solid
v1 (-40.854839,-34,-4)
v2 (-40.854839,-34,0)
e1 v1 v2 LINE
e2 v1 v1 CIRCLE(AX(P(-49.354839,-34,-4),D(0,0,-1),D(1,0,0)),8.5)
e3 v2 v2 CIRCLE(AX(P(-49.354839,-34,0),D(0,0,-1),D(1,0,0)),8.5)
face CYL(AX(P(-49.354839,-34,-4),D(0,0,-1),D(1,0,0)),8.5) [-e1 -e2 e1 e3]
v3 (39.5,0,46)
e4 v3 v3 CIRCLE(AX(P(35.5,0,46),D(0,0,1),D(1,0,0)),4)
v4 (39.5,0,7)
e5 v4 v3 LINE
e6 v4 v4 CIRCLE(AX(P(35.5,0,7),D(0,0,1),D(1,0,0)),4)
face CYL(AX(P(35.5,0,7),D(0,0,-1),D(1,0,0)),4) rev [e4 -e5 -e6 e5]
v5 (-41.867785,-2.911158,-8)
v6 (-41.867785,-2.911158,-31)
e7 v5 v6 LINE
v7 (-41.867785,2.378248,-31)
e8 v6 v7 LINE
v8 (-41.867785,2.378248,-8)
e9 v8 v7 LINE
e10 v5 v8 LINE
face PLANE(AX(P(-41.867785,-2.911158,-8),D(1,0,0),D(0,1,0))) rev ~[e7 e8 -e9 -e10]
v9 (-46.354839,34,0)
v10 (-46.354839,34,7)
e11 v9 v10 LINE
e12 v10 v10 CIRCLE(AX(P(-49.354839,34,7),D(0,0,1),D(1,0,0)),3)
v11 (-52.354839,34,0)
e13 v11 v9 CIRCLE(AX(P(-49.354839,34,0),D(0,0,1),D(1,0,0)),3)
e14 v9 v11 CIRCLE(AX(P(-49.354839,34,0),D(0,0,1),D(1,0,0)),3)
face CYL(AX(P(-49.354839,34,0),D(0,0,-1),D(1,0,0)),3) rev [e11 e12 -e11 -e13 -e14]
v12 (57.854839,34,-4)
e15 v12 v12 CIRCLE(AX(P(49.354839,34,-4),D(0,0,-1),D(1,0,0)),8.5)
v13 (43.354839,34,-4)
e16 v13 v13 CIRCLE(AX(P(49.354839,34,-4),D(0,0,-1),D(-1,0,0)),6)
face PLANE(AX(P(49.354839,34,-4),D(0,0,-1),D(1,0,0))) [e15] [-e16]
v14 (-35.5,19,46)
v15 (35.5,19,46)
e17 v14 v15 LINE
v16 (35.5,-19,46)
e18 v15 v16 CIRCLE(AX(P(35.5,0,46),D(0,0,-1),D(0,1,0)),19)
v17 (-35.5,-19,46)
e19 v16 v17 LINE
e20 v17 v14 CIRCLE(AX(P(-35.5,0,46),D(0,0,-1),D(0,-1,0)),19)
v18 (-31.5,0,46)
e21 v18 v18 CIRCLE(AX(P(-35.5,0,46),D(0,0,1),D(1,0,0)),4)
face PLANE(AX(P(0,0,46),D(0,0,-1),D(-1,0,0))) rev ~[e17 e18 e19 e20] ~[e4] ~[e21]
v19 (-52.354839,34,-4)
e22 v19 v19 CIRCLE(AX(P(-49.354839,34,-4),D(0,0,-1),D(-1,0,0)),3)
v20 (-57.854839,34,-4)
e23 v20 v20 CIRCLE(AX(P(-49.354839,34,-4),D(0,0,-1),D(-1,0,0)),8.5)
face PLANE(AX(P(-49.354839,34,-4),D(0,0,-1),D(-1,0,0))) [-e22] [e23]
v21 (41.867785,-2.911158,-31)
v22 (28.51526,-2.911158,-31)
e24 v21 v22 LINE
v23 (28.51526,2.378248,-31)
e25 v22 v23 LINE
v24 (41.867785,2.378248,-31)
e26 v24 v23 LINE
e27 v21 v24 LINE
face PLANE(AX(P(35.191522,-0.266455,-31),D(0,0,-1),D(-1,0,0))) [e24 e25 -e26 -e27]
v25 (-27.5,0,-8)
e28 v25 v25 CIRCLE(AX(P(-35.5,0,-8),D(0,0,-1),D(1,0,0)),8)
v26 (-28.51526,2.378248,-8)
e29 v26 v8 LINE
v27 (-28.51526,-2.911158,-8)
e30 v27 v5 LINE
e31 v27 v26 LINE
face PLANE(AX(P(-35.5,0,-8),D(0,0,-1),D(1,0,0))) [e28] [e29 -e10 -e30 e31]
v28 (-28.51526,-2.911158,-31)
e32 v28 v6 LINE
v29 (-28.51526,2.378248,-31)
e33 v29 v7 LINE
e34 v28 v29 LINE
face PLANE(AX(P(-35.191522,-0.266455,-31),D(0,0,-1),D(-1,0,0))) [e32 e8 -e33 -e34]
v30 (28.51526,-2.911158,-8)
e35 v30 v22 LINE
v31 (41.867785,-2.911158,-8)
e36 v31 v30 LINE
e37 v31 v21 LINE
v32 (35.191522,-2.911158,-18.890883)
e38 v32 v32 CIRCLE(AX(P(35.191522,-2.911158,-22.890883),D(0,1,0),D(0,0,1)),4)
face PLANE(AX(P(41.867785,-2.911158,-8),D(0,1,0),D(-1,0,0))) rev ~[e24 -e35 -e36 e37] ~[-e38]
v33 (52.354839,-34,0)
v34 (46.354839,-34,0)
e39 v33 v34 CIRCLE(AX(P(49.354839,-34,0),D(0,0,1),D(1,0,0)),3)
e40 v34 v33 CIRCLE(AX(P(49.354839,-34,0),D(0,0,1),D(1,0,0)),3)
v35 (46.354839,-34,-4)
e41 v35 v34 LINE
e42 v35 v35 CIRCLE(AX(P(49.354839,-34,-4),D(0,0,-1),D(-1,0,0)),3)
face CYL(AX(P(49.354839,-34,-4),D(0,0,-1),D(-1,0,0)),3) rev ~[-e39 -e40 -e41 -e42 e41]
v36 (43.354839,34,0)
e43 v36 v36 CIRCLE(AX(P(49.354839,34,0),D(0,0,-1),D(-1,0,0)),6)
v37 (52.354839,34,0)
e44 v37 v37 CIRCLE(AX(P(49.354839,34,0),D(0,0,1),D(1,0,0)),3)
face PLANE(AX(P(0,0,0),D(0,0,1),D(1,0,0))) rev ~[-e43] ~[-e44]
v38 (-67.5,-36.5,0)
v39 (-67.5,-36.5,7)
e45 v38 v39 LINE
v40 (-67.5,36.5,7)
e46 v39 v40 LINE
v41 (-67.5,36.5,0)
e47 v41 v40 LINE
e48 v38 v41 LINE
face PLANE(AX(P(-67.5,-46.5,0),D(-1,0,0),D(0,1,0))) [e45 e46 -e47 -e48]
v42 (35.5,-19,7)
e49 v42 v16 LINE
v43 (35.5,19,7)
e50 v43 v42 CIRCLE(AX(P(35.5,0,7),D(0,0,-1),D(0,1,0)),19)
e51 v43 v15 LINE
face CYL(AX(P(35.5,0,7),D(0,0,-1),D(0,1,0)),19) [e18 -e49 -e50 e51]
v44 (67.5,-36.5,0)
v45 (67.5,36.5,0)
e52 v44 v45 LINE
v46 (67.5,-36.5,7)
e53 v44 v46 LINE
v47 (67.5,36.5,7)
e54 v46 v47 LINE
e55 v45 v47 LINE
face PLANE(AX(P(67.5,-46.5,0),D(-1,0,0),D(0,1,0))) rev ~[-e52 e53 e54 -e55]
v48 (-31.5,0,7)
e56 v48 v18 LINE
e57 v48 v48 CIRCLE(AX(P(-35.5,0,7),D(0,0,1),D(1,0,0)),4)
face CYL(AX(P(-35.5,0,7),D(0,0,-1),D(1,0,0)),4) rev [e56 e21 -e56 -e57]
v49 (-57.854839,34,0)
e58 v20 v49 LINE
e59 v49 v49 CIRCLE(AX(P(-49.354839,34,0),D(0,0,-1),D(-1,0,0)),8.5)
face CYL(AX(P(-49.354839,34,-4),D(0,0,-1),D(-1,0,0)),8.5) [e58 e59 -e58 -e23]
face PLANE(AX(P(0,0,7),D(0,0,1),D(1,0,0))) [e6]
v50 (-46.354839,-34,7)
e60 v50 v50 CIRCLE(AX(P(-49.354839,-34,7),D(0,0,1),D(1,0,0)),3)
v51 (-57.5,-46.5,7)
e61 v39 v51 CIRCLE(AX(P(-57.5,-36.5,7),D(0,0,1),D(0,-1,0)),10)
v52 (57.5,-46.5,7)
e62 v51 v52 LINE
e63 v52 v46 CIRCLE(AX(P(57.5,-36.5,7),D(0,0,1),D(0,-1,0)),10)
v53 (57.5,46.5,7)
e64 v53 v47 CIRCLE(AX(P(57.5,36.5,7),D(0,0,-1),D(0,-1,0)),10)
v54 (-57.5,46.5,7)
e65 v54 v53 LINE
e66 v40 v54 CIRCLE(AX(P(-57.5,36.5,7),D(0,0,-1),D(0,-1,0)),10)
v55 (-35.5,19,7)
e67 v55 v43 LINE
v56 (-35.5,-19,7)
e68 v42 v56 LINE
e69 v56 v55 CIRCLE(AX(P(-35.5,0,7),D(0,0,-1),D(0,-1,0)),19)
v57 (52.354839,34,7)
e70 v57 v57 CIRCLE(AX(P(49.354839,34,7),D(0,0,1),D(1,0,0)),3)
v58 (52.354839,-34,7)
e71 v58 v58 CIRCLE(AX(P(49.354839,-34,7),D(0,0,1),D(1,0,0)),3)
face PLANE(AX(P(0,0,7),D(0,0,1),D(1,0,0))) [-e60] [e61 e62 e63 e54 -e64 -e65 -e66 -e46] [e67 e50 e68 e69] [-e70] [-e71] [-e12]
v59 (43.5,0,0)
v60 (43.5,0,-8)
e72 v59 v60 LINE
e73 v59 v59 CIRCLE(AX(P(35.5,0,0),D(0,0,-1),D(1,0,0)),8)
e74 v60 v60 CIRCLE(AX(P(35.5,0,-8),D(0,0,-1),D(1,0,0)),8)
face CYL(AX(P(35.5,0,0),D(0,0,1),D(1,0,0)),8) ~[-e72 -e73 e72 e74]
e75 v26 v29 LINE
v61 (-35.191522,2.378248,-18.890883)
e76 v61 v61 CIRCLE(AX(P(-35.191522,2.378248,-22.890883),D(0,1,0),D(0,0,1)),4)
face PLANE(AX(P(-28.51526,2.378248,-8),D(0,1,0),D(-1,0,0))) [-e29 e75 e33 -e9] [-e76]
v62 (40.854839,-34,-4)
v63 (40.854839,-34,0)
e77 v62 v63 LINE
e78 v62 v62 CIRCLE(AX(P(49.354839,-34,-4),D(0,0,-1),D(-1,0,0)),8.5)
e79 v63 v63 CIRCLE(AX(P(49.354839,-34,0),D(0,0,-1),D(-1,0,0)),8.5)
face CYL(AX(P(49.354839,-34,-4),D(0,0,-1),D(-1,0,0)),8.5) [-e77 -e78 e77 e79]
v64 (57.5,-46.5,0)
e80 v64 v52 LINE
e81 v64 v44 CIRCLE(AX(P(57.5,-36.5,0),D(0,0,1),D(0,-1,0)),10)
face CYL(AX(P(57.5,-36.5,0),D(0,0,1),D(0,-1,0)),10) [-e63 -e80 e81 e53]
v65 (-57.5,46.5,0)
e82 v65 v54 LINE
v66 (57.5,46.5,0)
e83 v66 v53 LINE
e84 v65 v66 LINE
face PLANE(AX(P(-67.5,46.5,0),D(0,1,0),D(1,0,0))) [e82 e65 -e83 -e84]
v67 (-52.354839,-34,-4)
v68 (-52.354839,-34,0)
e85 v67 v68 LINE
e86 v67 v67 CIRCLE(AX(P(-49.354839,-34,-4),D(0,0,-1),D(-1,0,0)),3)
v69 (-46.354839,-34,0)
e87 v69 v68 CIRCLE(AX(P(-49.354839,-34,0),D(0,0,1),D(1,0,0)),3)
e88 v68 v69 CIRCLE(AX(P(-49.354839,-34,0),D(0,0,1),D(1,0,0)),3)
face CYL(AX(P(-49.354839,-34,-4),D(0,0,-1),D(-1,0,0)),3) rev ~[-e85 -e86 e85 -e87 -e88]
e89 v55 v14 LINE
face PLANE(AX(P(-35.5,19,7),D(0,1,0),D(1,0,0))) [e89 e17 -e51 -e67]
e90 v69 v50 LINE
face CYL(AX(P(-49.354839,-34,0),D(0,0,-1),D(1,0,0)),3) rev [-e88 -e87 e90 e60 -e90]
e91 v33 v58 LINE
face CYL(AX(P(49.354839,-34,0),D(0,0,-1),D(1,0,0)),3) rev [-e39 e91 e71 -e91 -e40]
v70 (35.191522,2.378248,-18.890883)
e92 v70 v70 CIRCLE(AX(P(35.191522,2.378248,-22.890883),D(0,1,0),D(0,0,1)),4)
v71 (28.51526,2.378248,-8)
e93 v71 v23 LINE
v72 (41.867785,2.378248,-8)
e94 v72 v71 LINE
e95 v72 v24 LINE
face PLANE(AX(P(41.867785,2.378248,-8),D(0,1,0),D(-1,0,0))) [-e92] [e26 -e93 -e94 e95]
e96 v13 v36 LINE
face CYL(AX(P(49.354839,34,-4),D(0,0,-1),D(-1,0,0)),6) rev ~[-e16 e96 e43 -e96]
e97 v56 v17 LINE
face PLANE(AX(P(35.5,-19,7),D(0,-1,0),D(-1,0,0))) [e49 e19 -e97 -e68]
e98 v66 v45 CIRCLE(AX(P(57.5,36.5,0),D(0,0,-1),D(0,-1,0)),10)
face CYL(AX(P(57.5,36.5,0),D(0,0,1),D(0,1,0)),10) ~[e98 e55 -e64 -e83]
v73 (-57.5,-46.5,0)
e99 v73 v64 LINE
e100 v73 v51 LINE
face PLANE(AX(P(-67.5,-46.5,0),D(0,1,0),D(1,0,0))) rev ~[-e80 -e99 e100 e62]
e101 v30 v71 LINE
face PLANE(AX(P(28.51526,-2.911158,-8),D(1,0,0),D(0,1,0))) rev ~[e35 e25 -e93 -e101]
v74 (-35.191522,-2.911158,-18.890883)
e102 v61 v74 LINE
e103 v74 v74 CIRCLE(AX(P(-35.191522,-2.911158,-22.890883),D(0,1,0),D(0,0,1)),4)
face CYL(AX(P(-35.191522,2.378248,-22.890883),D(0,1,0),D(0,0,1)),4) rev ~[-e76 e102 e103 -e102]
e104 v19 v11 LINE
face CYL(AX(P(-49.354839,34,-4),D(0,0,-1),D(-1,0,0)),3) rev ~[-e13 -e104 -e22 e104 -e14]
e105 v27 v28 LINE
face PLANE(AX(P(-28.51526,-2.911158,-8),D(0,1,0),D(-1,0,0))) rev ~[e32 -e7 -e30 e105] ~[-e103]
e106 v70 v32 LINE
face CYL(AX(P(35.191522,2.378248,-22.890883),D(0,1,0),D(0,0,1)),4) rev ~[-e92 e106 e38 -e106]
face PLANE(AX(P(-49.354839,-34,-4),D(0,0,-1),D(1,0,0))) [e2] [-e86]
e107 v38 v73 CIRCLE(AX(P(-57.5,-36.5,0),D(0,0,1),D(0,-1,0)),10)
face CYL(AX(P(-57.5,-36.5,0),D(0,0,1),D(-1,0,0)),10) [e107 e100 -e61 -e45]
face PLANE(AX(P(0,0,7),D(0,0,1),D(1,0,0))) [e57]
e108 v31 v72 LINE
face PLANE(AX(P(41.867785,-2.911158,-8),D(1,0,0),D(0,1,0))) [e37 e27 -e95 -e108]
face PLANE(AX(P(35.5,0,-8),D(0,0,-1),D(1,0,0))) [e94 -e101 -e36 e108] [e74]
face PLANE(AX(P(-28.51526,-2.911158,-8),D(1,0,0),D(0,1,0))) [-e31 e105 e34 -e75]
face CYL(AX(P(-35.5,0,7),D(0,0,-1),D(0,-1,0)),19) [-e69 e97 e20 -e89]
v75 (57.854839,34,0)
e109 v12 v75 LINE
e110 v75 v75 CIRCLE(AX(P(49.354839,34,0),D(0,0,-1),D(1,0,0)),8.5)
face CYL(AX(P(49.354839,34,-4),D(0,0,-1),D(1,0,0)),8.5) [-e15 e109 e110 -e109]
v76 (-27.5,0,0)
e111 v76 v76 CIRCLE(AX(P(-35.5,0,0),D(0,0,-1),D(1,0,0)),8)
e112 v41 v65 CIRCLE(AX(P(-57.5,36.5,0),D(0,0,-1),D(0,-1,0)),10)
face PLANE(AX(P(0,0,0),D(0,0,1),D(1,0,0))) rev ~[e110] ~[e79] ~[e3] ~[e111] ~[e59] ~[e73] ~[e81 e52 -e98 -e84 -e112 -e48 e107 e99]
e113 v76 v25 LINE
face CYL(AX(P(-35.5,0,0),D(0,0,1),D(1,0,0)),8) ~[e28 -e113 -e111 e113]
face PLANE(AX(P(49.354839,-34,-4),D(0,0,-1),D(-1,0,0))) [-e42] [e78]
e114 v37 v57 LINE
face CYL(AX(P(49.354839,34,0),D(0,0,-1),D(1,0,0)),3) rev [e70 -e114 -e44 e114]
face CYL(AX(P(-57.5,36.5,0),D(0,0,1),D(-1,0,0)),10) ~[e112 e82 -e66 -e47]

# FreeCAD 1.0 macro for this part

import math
import FreeCAD as App
import Part
import Sketcher

V = App.Vector


def edges_at(feature, points):
    """Names of the edges that pass closest to the given points."""
    edges = feature.Shape.Edges
    near = lambda p: min(range(len(edges)), key=lambda i: edges[i].distToShape(Part.Vertex(*p))[0])
    return sorted({f"Edge{near(p) + 1}" for p in points})

doc = App.newDocument("Part")
body = doc.addObject("PartDesign::Body", "Body")

# Sketch on XY plane
sketch1 = body.newObject("Sketcher::SketchObject", "Sketch")
sketch1.AttachmentSupport = (doc.getObject("XY_Plane"), [""])
sketch1.MapMode = "FlatFace"
sketch1.addGeometry([
    Part.LineSegment(V(-67.5, 46.5, 0), V(-67.5, -46.5, 0)),  # 0
    Part.LineSegment(V(-67.5, -46.5, 0), V(67.5, -46.5, 0)),  # 1
    Part.LineSegment(V(67.5, -46.5, 0), V(67.5, 46.5, 0)),  # 2
    Part.LineSegment(V(67.5, 46.5, 0), V(-67.5, 46.5, 0)),  # 3
    Part.Circle(V(-49.4, -34, 0), V(0, 0, 1), 3),  # 4
    Part.Circle(V(49.4, -34, 0), V(0, 0, 1), 3),  # 5
    Part.Circle(V(-49.4, 34, 0), V(0, 0, 1), 3),  # 6
    Part.Circle(V(49.4, 34, 0), V(0, 0, 1), 3),  # 7
], False)
sketch1.addConstraint([
    Sketcher.Constraint("Coincident", 0, 2, 1, 1),
    Sketcher.Constraint("Coincident", 1, 2, 2, 1),
    Sketcher.Constraint("Coincident", 2, 2, 3, 1),
    Sketcher.Constraint("Coincident", 3, 2, 0, 1),
    Sketcher.Constraint("Vertical", 0),
    Sketcher.Constraint("Horizontal", 1),
    Sketcher.Constraint("Vertical", 2),
    Sketcher.Constraint("Horizontal", 3),
    Sketcher.Constraint("Equal", 4, 5),
    Sketcher.Constraint("Equal", 5, 6),
    Sketcher.Constraint("Equal", 6, 7),
    Sketcher.Constraint("Symmetric", 5, 3, 6, 3, -1, 1),
    Sketcher.Constraint("Symmetric", 4, 3, 7, 3, -1, 1),
    Sketcher.Constraint("Symmetric", 0, 2, 2, 2, -1, 1),
    Sketcher.Constraint("Symmetric", 4, 3, 5, 3, -2),
    Sketcher.Constraint("Diameter", 4, 6.0),
    Sketcher.Constraint("DistanceX", 1, 1, 1, 2, 135.0),
    Sketcher.Constraint("DistanceY", 0, 2, 0, 1, 93.0),
    Sketcher.Constraint("DistanceY", 4, 3, -1, 1, 34.0),
    Sketcher.Constraint("DistanceX", 4, 3, -1, 1, 49.354839),
])
pad1 = body.newObject("PartDesign::Pad", "Pad")
pad1.Profile = sketch1
pad1.Length = 7

# Sketch on XY plane
sketch2 = body.newObject("Sketcher::SketchObject", "Sketch001")
sketch2.AttachmentSupport = (doc.getObject("XY_Plane"), [""])
sketch2.MapMode = "FlatFace"
sketch2.AttachmentOffset = App.Placement(V(0, 0, 7), App.Rotation())
sketch2.addGeometry([
    Part.LineSegment(V(35.5, 19, 0), V(-35.5, 19, 0)),  # 0
    Part.ArcOfCircle(Part.Circle(V(-35.5, 0, 0), V(0, 0, 1), 19), math.radians(90), math.radians(270)),  # 1
    Part.LineSegment(V(-35.5, -19, 0), V(35.5, -19, 0)),  # 2
    Part.ArcOfCircle(Part.Circle(V(35.5, 0, 0), V(0, 0, 1), 19), math.radians(-90), math.radians(90)),  # 3
    Part.Circle(V(35.5, 0, 0), V(0, 0, 1), 4),  # 4
    Part.Circle(V(-35.5, 0, 0), V(0, 0, 1), 4),  # 5
], False)
sketch2.addConstraint([
    Sketcher.Constraint("Tangent", 0, 2, 1, 1),
    Sketcher.Constraint("Tangent", 1, 2, 2, 1),
    Sketcher.Constraint("Tangent", 2, 2, 3, 1),
    Sketcher.Constraint("Tangent", 3, 2, 0, 1),
    Sketcher.Constraint("Horizontal", 0),
    Sketcher.Constraint("Horizontal", 2),
    Sketcher.Constraint("Coincident", 4, 3, 3, 3),
    Sketcher.Constraint("Coincident", 5, 3, 1, 3),
    Sketcher.Constraint("Equal", 4, 5),
    Sketcher.Constraint("Symmetric", 1, 3, 3, 3, -1, 1),
    Sketcher.Constraint("Diameter", 4, 8.0),
    Sketcher.Constraint("Radius", 1, 19.0),
    Sketcher.Constraint("DistanceX", 0, 2, 0, 1, 71.0),
])
pad2 = body.newObject("PartDesign::Pad", "Pad001")
pad2.Profile = sketch2
pad2.Length = 39
doc.recompute()

fillet = body.newObject("PartDesign::Fillet", "Fillet")
fillet.Base = (pad2, edges_at(pad2, [
    (-67.5, -46.5, 3.5),
    (-67.5, 46.5, 3.5),
    (67.5, 46.5, 3.5),
    (67.5, -46.5, 3.5),
]))
fillet.Radius = 10

# Sketch on XY plane
sketch3 = body.newObject("Sketcher::SketchObject", "Sketch002")
sketch3.AttachmentSupport = (doc.getObject("XY_Plane"), [""])
sketch3.MapMode = "FlatFace"
sketch3.addGeometry([
    Part.Circle(V(36, 0, 0), V(0, 0, 1), 8),
    Part.Circle(V(-36, 0, 0), V(0, 0, 1), 8),
], False)
sketch3.addConstraint([
    Sketcher.Constraint("Equal", 0, 1),
    Sketcher.Constraint("Symmetric", 0, 3, 1, 3, -1, 1),
    Sketcher.Constraint("PointOnObject", 0, 3, -1),
    Sketcher.Constraint("Diameter", 0, 16.0),
    Sketcher.Constraint("DistanceX", 1, 3, 0, 3, 71.0),
])
pad3 = body.newObject("PartDesign::Pad", "Pad002")
pad3.Profile = sketch3
pad3.Length = 8
pad3.Reversed = True

# Sketch on XY plane
sketch4 = body.newObject("Sketcher::SketchObject", "Sketch003")
sketch4.AttachmentSupport = (doc.getObject("XY_Plane"), [""])
sketch4.MapMode = "FlatFace"
sketch4.AttachmentOffset = App.Placement(V(0, 0, -8), App.Rotation())
sketch4.addGeometry([
    Part.LineSegment(V(42, 2, 0), V(42, -3, 0)),  # 0
    Part.LineSegment(V(42, -3, 0), V(29, -3, 0)),  # 1
    Part.LineSegment(V(29, -3, 0), V(29, 2, 0)),  # 2
    Part.LineSegment(V(29, 2, 0), V(42, 2, 0)),  # 3
    Part.LineSegment(V(-29, 2, 0), V(-29, -3, 0)),  # 4
    Part.LineSegment(V(-29, -3, 0), V(-42, -3, 0)),  # 5
    Part.LineSegment(V(-42, -3, 0), V(-42, 2, 0)),  # 6
    Part.LineSegment(V(-42, 2, 0), V(-29, 2, 0)),  # 7
], False)
sketch4.addConstraint([
    Sketcher.Constraint("Coincident", 0, 2, 1, 1),
    Sketcher.Constraint("Coincident", 1, 2, 2, 1),
    Sketcher.Constraint("Coincident", 2, 2, 3, 1),
    Sketcher.Constraint("Coincident", 3, 2, 0, 1),
    Sketcher.Constraint("Coincident", 4, 2, 5, 1),
    Sketcher.Constraint("Coincident", 5, 2, 6, 1),
    Sketcher.Constraint("Coincident", 6, 2, 7, 1),
    Sketcher.Constraint("Coincident", 7, 2, 4, 1),
    Sketcher.Constraint("Vertical", 0),
    Sketcher.Constraint("Horizontal", 1),
    Sketcher.Constraint("Vertical", 2),
    Sketcher.Constraint("Horizontal", 3),
    Sketcher.Constraint("Vertical", 4),
    Sketcher.Constraint("Horizontal", 5),
    Sketcher.Constraint("Vertical", 6),
    Sketcher.Constraint("Horizontal", 7),
    Sketcher.Constraint("Symmetric", 1, 2, 4, 2, -2),
    Sketcher.Constraint("Symmetric", 3, 2, 6, 2, -2),
    Sketcher.Constraint("DistanceX", 1, 2, 1, 1, 13.352525),
    Sketcher.Constraint("DistanceY", 0, 2, 0, 1, 5.289406),
    Sketcher.Constraint("DistanceX", -1, 1, 1, 2, 28.51526),
    Sketcher.Constraint("DistanceY", -1, 1, 2, 2, 2.378248),
])
pad4 = body.newObject("PartDesign::Pad", "Pad003")
pad4.Profile = sketch4
pad4.Length = 23
pad4.Reversed = True

# Sketch on XZ plane
sketch5 = body.newObject("Sketcher::SketchObject", "Sketch004")
sketch5.AttachmentSupport = (doc.getObject("XZ_Plane"), [""])
sketch5.MapMode = "FlatFace"
sketch5.AttachmentOffset = App.Placement(V(0, 0, -2.378248), App.Rotation())
sketch5.addGeometry([
    Part.Circle(V(35.2, -22.9, 0), V(0, 0, 1), 4),
    Part.Circle(V(-35.2, -22.9, 0), V(0, 0, 1), 4),
], False)
sketch5.addConstraint([
    Sketcher.Constraint("Equal", 0, 1),
    Sketcher.Constraint("Symmetric", 0, 3, 1, 3, -2),
    Sketcher.Constraint("Diameter", 0, 8.0),
    Sketcher.Constraint("DistanceX", -1, 1, 0, 3, 35.191522),
    Sketcher.Constraint("DistanceY", 0, 3, -1, 1, 22.890883),
])
pocket1 = body.newObject("PartDesign::Pocket", "Pocket")
pocket1.Profile = sketch5
pocket1.Length = 23
pocket1.Reversed = True

# Sketch on XY plane
sketch6 = body.newObject("Sketcher::SketchObject", "Sketch005")
sketch6.AttachmentSupport = (doc.getObject("XY_Plane"), [""])
sketch6.MapMode = "FlatFace"
sketch6.AttachmentOffset = App.Placement(V(0, 0, -4), App.Rotation())
sketch6.addGeometry([
    Part.Circle(V(49.4, 34, 0), V(0, 0, 1), 8.5),  # 0
    Part.Circle(V(49.4, 34, 0), V(0, 0, 1), 6),  # 1
    Part.Circle(V(49.4, -34, 0), V(0, 0, 1), 8.5),  # 2
    Part.Circle(V(49.4, -34, 0), V(0, 0, 1), 3),  # 3
    Part.Circle(V(-49.4, -34, 0), V(0, 0, 1), 8.5),  # 4
    Part.Circle(V(-49.4, -34, 0), V(0, 0, 1), 3),  # 5
    Part.Circle(V(-49.4, 34, 0), V(0, 0, 1), 8.5),  # 6
    Part.Circle(V(-49.4, 34, 0), V(0, 0, 1), 3),  # 7
], False)
sketch6.addConstraint([
    Sketcher.Constraint("Coincident", 1, 3, 0, 3),
    Sketcher.Constraint("Coincident", 3, 3, 2, 3),
    Sketcher.Constraint("Coincident", 5, 3, 4, 3),
    Sketcher.Constraint("Coincident", 7, 3, 6, 3),
    Sketcher.Constraint("Equal", 0, 2),
    Sketcher.Constraint("Equal", 2, 4),
    Sketcher.Constraint("Equal", 3, 5),
    Sketcher.Constraint("Equal", 4, 6),
    Sketcher.Constraint("Equal", 5, 7),
    Sketcher.Constraint("Symmetric", 0, 3, 4, 3, -1, 1),
    Sketcher.Constraint("Symmetric", 2, 3, 6, 3, -1, 1),
    Sketcher.Constraint("Symmetric", 2, 3, 4, 3, -2),
    Sketcher.Constraint("Diameter", 0, 17.0),
    Sketcher.Constraint("Diameter", 1, 12.0),
    Sketcher.Constraint("Diameter", 3, 6.0),
    Sketcher.Constraint("DistanceY", -1, 1, 0, 3, 34.0),
    Sketcher.Constraint("DistanceX", -1, 1, 0, 3, 49.354839),
])
pad5 = body.newObject("PartDesign::Pad", "Pad004")
pad5.Profile = sketch6
pad5.Length = 4

doc.recompute()
